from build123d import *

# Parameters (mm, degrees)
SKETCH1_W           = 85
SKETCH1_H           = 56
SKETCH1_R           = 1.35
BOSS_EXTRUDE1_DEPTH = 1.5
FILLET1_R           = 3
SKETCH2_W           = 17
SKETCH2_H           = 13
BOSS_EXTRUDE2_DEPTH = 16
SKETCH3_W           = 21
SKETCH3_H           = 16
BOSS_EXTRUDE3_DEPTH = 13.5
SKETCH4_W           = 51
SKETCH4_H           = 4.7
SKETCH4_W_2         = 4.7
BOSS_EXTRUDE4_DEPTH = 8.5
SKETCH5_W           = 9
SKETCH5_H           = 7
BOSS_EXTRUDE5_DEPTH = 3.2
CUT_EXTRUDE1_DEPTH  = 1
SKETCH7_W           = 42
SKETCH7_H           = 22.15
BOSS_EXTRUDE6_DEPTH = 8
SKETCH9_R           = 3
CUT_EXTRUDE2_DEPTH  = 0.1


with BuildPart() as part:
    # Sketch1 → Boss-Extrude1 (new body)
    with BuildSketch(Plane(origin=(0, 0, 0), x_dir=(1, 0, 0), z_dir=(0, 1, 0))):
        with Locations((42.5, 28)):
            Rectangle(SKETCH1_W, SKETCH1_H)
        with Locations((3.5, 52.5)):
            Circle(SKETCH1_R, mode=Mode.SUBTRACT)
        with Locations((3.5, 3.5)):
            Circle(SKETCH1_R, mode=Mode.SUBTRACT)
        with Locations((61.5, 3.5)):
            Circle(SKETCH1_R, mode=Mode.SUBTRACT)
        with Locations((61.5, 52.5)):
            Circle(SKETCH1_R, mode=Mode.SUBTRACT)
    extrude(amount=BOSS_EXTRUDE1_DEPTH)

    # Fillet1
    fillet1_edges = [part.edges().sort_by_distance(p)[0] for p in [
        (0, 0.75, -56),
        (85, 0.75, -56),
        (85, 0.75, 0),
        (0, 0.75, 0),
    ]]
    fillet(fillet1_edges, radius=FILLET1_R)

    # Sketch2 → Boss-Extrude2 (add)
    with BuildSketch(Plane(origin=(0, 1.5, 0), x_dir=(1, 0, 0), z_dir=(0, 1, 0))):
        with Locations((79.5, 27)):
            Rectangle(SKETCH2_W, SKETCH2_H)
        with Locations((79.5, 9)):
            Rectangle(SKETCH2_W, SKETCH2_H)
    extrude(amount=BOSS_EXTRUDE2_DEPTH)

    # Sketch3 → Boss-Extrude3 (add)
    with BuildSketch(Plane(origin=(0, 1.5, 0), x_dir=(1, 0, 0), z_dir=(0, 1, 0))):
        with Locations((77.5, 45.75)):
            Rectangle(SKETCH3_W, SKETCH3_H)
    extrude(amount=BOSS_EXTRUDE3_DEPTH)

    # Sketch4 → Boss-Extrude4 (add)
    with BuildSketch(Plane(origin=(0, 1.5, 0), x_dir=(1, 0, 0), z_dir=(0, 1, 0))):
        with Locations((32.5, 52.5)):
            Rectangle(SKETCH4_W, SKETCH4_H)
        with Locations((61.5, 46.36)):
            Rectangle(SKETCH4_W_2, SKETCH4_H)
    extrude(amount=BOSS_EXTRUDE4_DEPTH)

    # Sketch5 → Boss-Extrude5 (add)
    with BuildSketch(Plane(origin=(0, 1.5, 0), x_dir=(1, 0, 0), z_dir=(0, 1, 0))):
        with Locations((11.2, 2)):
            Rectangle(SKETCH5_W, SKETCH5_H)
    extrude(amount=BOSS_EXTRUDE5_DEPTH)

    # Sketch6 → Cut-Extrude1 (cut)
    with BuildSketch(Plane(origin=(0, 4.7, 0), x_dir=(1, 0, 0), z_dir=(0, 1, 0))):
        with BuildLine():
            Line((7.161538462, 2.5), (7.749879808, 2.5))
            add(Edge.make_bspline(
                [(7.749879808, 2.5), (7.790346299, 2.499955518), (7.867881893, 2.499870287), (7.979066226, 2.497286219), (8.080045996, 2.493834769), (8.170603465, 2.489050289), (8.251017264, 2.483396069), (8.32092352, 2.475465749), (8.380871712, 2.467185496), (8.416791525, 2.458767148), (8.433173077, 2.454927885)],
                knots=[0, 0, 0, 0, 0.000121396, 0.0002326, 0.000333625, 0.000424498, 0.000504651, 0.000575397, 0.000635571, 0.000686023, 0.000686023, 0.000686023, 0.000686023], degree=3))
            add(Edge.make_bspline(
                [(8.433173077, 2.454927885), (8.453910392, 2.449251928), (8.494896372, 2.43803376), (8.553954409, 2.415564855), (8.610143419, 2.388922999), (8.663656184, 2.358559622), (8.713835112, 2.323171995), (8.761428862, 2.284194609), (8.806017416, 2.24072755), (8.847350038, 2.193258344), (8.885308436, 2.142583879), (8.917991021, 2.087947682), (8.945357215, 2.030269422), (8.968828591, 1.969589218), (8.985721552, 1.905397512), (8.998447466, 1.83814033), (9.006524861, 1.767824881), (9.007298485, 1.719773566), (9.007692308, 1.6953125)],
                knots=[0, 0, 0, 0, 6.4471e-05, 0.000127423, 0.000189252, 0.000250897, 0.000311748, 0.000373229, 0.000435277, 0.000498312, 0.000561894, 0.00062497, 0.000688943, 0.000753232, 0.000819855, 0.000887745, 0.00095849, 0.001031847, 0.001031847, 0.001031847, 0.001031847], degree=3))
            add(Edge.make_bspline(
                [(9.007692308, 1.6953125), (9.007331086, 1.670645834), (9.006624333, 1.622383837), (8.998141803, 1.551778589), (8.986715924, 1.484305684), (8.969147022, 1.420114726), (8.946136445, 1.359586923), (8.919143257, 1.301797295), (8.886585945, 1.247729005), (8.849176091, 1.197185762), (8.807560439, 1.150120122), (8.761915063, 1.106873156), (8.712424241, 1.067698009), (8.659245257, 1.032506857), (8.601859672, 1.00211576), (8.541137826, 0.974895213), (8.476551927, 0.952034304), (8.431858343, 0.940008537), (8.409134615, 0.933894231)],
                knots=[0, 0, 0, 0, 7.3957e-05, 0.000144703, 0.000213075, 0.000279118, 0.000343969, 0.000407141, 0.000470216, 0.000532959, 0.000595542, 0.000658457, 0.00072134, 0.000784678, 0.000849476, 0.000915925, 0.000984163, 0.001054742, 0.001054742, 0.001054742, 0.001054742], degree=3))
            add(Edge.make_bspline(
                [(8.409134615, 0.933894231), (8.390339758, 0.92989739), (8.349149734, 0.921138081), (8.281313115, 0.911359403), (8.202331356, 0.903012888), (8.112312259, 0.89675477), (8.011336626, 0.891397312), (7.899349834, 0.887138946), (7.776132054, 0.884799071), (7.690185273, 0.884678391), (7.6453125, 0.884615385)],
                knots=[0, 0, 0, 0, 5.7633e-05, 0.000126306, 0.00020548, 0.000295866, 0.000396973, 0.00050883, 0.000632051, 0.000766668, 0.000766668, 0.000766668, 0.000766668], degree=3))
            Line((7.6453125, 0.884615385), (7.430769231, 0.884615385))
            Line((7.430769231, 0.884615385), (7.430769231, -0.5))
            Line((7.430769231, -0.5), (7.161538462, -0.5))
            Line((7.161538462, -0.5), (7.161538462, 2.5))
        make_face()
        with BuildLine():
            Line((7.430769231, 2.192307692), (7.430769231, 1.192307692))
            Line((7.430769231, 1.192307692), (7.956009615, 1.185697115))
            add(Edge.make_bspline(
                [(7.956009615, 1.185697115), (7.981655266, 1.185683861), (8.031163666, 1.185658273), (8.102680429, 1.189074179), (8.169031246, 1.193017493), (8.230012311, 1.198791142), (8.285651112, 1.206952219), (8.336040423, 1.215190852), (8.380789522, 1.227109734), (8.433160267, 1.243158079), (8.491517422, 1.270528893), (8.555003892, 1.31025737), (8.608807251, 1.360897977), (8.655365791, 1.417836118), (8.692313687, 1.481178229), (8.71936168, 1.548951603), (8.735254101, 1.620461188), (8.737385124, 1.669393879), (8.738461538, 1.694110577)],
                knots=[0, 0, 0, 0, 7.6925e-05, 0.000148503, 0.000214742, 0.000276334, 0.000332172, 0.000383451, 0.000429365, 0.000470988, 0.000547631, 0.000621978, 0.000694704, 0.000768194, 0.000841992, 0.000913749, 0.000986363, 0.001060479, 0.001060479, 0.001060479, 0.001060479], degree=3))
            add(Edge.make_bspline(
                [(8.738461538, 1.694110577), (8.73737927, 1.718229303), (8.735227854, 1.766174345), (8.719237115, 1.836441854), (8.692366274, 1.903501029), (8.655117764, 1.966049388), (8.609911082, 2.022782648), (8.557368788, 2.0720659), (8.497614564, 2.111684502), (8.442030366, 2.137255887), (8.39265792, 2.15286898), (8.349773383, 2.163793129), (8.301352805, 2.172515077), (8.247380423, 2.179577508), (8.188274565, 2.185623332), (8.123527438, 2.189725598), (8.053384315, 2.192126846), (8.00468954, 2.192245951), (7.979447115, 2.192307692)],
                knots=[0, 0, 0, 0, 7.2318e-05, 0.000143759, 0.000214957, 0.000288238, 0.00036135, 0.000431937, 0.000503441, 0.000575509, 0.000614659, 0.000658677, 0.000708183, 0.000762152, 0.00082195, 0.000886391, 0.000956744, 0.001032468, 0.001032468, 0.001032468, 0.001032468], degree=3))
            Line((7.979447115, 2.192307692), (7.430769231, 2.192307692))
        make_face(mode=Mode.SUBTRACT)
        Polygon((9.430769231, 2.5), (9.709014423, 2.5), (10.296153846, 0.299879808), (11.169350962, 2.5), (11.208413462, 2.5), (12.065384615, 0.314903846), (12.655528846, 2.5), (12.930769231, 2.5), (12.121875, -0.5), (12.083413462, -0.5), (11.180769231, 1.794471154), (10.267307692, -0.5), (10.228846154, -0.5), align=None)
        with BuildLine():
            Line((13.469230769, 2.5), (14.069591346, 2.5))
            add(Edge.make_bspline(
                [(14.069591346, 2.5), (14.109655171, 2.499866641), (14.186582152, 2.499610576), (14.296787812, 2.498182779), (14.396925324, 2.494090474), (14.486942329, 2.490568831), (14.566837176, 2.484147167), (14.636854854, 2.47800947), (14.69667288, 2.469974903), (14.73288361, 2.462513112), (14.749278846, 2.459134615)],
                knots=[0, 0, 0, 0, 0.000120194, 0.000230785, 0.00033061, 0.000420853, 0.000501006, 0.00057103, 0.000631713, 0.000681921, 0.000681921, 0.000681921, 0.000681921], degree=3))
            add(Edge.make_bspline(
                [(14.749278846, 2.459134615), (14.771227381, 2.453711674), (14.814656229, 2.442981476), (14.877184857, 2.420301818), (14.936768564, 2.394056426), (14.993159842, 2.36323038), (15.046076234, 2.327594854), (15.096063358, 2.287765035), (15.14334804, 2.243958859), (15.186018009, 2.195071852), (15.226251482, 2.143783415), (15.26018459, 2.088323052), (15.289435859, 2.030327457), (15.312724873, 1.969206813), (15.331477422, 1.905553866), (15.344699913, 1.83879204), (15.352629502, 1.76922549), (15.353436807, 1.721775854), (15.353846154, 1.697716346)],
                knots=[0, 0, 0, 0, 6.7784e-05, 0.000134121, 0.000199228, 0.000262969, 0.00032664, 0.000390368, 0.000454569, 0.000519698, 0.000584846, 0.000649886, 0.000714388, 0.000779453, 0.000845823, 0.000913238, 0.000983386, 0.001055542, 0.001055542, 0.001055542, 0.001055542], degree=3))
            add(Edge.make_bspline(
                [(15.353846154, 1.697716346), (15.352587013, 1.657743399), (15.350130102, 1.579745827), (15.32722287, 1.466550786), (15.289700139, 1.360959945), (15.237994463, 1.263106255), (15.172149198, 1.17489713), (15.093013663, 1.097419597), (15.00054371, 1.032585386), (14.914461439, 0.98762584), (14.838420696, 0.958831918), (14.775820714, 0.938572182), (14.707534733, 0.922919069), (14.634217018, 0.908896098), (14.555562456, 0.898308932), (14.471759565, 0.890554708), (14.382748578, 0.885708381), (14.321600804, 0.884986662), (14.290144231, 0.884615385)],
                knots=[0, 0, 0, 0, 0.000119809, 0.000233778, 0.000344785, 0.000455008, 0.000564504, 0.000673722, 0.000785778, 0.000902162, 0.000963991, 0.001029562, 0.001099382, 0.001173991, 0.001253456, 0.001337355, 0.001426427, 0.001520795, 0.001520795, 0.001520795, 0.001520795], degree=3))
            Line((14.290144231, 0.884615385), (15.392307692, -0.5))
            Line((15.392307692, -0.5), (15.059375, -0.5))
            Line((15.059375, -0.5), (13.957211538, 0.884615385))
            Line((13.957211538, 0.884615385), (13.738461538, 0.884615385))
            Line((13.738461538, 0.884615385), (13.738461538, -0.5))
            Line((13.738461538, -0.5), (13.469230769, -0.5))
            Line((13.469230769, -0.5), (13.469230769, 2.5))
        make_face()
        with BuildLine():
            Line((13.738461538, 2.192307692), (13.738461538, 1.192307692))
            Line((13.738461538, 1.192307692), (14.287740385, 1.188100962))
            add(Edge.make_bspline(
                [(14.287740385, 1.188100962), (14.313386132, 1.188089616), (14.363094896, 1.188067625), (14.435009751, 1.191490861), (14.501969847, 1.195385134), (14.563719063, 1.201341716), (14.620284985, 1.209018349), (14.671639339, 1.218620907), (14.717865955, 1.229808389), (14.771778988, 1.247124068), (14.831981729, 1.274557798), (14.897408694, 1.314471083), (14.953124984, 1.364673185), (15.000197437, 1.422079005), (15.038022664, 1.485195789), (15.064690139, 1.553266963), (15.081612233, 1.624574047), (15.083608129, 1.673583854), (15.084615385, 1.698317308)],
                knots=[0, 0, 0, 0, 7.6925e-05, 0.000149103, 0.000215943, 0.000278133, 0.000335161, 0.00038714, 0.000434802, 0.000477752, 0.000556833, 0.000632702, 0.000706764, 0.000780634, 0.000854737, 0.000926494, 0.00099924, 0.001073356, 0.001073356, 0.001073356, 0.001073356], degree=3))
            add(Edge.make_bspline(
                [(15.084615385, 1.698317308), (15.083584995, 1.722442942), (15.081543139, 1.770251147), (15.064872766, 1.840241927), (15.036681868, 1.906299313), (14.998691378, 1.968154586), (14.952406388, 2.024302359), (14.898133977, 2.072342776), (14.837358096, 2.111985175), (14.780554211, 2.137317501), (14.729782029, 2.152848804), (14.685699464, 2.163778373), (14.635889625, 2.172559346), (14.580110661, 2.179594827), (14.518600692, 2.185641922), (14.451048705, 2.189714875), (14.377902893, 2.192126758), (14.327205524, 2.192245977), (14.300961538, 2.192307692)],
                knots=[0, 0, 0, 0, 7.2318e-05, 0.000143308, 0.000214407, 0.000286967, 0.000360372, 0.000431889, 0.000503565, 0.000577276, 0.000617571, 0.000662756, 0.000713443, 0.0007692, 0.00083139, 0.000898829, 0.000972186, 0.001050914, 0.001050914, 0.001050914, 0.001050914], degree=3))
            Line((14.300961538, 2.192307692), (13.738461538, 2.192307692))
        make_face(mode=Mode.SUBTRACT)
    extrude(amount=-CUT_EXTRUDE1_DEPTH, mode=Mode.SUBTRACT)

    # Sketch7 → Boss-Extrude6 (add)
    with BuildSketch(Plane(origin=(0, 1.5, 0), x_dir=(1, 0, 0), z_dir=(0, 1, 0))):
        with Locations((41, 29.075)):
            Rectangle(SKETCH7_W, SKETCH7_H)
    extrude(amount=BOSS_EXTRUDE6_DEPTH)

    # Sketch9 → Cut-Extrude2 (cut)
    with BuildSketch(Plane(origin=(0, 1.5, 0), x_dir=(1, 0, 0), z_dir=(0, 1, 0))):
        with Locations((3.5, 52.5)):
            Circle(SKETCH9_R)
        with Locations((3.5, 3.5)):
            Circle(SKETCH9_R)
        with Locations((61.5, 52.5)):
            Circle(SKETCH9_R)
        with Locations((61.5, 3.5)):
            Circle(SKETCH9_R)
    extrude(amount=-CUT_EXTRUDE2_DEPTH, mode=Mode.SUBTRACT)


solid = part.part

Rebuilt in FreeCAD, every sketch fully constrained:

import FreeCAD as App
import Part
import Sketcher


def edges_at(feature, points):
    """Names of the edges that pass closest to the given points."""
    edges = feature.Shape.Edges
    near = lambda p: min(range(len(edges)), key=lambda i: edges[i].distToShape(Part.Vertex(*p))[0])
    return sorted({f"Edge{near(p) + 1}" for p in points})


def add_polygon(sketch, points):
    """Adds a closed chain of lines whose ends are joined by coincident constraints."""
    first, n = sketch.GeometryCount, len(points)
    for a, b in zip(points, points[1:] + points[:1]):
        sketch.addGeometry(Part.LineSegment(App.Vector(*a, 0), App.Vector(*b, 0)), False)
    for i in range(n):
        sketch.addConstraint(Sketcher.Constraint("Coincident", first + i, 2, first + (i + 1) % n, 1))

doc = App.newDocument("Part")
params = doc.addObject("Spreadsheet::Sheet", "Params")
for row, (alias, value) in enumerate([
    ("sketch1_diameter", "2.7 mm"),
    ("sketch1_width", "85 mm"),
    ("sketch1_height", "56 mm"),
    ("pad1_length", "1.5 mm"),
    ("fillet_radius", "3 mm"),
    ("sketch2_width", "17 mm"),
    ("sketch2_height", "13 mm"),
    ("pad2_length", "16 mm"),
    ("sketch3_width", "21 mm"),
    ("sketch3_height", "16 mm"),
    ("pad3_length", "13.5 mm"),
    ("sketch4_width", "51 mm"),
    ("sketch4_width2", "4.7 mm"),
    ("pad4_length", "8.5 mm"),
    ("sketch5_width", "9 mm"),
    ("sketch5_height", "7 mm"),
    ("pad5_length", "3.2 mm"),
    ("sketch6_height", "3 mm"),
    ("sketch6_height2", "1 mm"),
    ("sketch6_height3", "3 mm"),
    ("sketch6_height4", "1 mm"),
    ("pocket1_length", "1 mm"),
    ("sketch7_width", "42 mm"),
    ("sketch7_height", "22.15 mm"),
    ("pad6_length", "8 mm"),
    ("sketch8_diameter", "6 mm"),
    ("pocket2_length", "0.1 mm"),
], start=1):
    params.set(f"A{row}", alias)
    params.set(f"B{row}", "=" + value)
    params.setAlias(f"B{row}", alias)

body = doc.addObject("PartDesign::Body", "Body")

sketch1 = doc.addObject("Sketcher::SketchObject", "Sketch")
body.addObject(sketch1)
sketch1.AttachmentSupport = (doc.XZ_Plane, [""])
sketch1.MapMode = "FlatFace"
add_polygon(sketch1, [(0, -56), (0, 0), (85, 0), (85, -56)])
sketch1.addGeometry(Part.Circle(App.Vector(3.5, -3.5, 0), App.Vector(0, 0, 1), 1.4), False)
sketch1.addGeometry(Part.Circle(App.Vector(61.5, -3.5, 0), App.Vector(0, 0, 1), 1.4), False)
sketch1.addGeometry(Part.Circle(App.Vector(3.5, -52.5, 0), App.Vector(0, 0, 1), 1.4), False)
sketch1.addGeometry(Part.Circle(App.Vector(61.5, -52.5, 0), App.Vector(0, 0, 1), 1.4), False)
sketch1.addConstraint([
    Sketcher.Constraint("Vertical", 0),
    Sketcher.Constraint("Horizontal", 1),
    Sketcher.Constraint("Vertical", 2),
    Sketcher.Constraint("Horizontal", 3),
    Sketcher.Constraint("Coincident", 0, 2, -1, 1),
    Sketcher.Constraint("Equal", 4, 5),
    Sketcher.Constraint("Equal", 5, 6),
    Sketcher.Constraint("Equal", 6, 7),
    Sketcher.Constraint("Horizontal", 4, 3, 5, 3),
    Sketcher.Constraint("Horizontal", 6, 3, 7, 3),
    Sketcher.Constraint("Vertical", 4, 3, 6, 3),
    Sketcher.Constraint("Vertical", 5, 3, 7, 3),
    Sketcher.Constraint("Diameter", 4, 2.7),
    Sketcher.Constraint("DistanceX", 1, 1, 1, 2, 85.0),
    Sketcher.Constraint("DistanceY", 0, 1, 0, 2, 56.0),
    Sketcher.Constraint("DistanceX", 4, 3, 5, 3, 58.0),
    Sketcher.Constraint("DistanceY", 6, 3, 4, 3, 49.0),
    Sketcher.Constraint("DistanceX", -1, 1, 4, 3, 3.5),
    Sketcher.Constraint("DistanceY", 4, 3, -1, 1, 3.5),
])
sketch1.setExpression("Constraints[16]", "Params.sketch1_diameter")
sketch1.setExpression("Constraints[17]", "Params.sketch1_width")
sketch1.setExpression("Constraints[18]", "Params.sketch1_height")
pad1 = doc.addObject("PartDesign::Pad", "Pad")
body.addObject(pad1)
pad1.Profile = sketch1
pad1.setExpression("Length", "Params.pad1_length")
pad1.Reversed = True
doc.recompute()

fillet = doc.addObject("PartDesign::Fillet", "Fillet")
body.addObject(fillet)
fillet.Base = (pad1, edges_at(pad1, [
    (0, 0.75, -56),
    (85, 0.75, -56),
    (85, 0.75, 0),
    (0, 0.75, 0),
]))
fillet.setExpression("Radius", "Params.fillet_radius")

sketch2 = doc.addObject("Sketcher::SketchObject", "Sketch001")
body.addObject(sketch2)
sketch2.AttachmentSupport = (doc.XZ_Plane, [""])
sketch2.MapMode = "FlatFace"
sketch2.AttachmentOffset = App.Placement(App.Vector(0, 0, -1.5), App.Rotation())
add_polygon(sketch2, [(71, -34), (71, -20), (88, -20), (88, -34)])
add_polygon(sketch2, [(71, -16), (71, -2), (88, -2), (88, -16)])
sketch2.addConstraint([
    Sketcher.Constraint("Vertical", 0),
    Sketcher.Constraint("Horizontal", 1),
    Sketcher.Constraint("Vertical", 2),
    Sketcher.Constraint("Horizontal", 3),
    Sketcher.Constraint("Vertical", 4),
    Sketcher.Constraint("Horizontal", 5),
    Sketcher.Constraint("Vertical", 6),
    Sketcher.Constraint("Horizontal", 7),
    Sketcher.Constraint("Vertical", 3, 2, 4, 2),
    Sketcher.Constraint("Vertical", 2, 2, 5, 2),
    Sketcher.Constraint("Equal", 2, 4),
    Sketcher.Constraint("DistanceX", 1, 1, 1, 2, 17.0),
    Sketcher.Constraint("DistanceY", 0, 1, 0, 2, 13.0),
    Sketcher.Constraint("DistanceX", -1, 1, 0, 2, 71.0),
    Sketcher.Constraint("DistanceY", 0, 2, 4, 2, 18.0),
    Sketcher.Constraint("DistanceY", 0, 2, -1, 1, 20.5),
])
sketch2.setExpression("Constraints[19]", "Params.sketch2_width")
sketch2.setExpression("Constraints[20]", "Params.sketch2_height")
pad2 = doc.addObject("PartDesign::Pad", "Pad001")
body.addObject(pad2)
pad2.Profile = sketch2
pad2.setExpression("Length", "Params.pad2_length")
pad2.Reversed = True

sketch3 = doc.addObject("Sketcher::SketchObject", "Sketch002")
body.addObject(sketch3)
sketch3.AttachmentSupport = (doc.XZ_Plane, [""])
sketch3.MapMode = "FlatFace"
sketch3.AttachmentOffset = App.Placement(App.Vector(0, 0, -1.5), App.Rotation())
add_polygon(sketch3, [(67, -54), (67, -38), (88, -38), (88, -54)])
sketch3.addConstraint([
    Sketcher.Constraint("Vertical", 0),
    Sketcher.Constraint("Horizontal", 1),
    Sketcher.Constraint("Vertical", 2),
    Sketcher.Constraint("Horizontal", 3),
    Sketcher.Constraint("DistanceX", 1, 1, 1, 2, 21.0),
    Sketcher.Constraint("DistanceY", 0, 1, 0, 2, 16.0),
    Sketcher.Constraint("DistanceX", -1, 1, 0, 2, 67.0),
    Sketcher.Constraint("DistanceY", 0, 2, -1, 1, 37.75),
])
sketch3.setExpression("Constraints[8]", "Params.sketch3_width")
sketch3.setExpression("Constraints[9]", "Params.sketch3_height")
pad3 = doc.addObject("PartDesign::Pad", "Pad002")
body.addObject(pad3)
pad3.Profile = sketch3
pad3.setExpression("Length", "Params.pad3_length")
pad3.Reversed = True

sketch4 = doc.addObject("Sketcher::SketchObject", "Sketch003")
body.addObject(sketch4)
sketch4.AttachmentSupport = (doc.XZ_Plane, [""])
sketch4.MapMode = "FlatFace"
sketch4.AttachmentOffset = App.Placement(App.Vector(0, 0, -1.5), App.Rotation())
add_polygon(sketch4, [(7, -54.9), (7, -50.1), (58, -50.1), (58, -54.9)])
add_polygon(sketch4, [(59.1, -48.7), (59.1, -44), (63.9, -44), (63.9, -48.7)])
sketch4.addConstraint([
    Sketcher.Constraint("Vertical", 0),
    Sketcher.Constraint("Horizontal", 1),
    Sketcher.Constraint("Vertical", 2),
    Sketcher.Constraint("Horizontal", 3),
    Sketcher.Constraint("Vertical", 4),
    Sketcher.Constraint("Horizontal", 5),
    Sketcher.Constraint("Vertical", 6),
    Sketcher.Constraint("Horizontal", 7),
    Sketcher.Constraint("Equal", 7, 0),
    Sketcher.Constraint("Equal", 2, 4),
    Sketcher.Constraint("DistanceX", 1, 1, 1, 2, 51.0),
    Sketcher.Constraint("DistanceX", 5, 1, 5, 2, 4.7),
    Sketcher.Constraint("DistanceX", -1, 1, 0, 2, 7.0),
    Sketcher.Constraint("DistanceY", 0, 2, -1, 1, 50.15),
    Sketcher.Constraint("DistanceX", -1, 1, 4, 2, 59.15),
    Sketcher.Constraint("DistanceY", 4, 2, -1, 1, 44.01),
])
sketch4.setExpression("Constraints[18]", "Params.sketch4_width")
sketch4.setExpression("Constraints[19]", "Params.sketch4_width2")
pad4 = doc.addObject("PartDesign::Pad", "Pad003")
body.addObject(pad4)
pad4.Profile = sketch4
pad4.setExpression("Length", "Params.pad4_length")
pad4.Reversed = True

sketch5 = doc.addObject("Sketcher::SketchObject", "Sketch004")
body.addObject(sketch5)
sketch5.AttachmentSupport = (doc.XZ_Plane, [""])
sketch5.MapMode = "FlatFace"
sketch5.AttachmentOffset = App.Placement(App.Vector(0, 0, -1.5), App.Rotation())
add_polygon(sketch5, [(7, -6), (7, 2), (16, 2), (16, -6)])
sketch5.addConstraint([
    Sketcher.Constraint("Vertical", 0),
    Sketcher.Constraint("Horizontal", 1),
    Sketcher.Constraint("Vertical", 2),
    Sketcher.Constraint("Horizontal", 3),
    Sketcher.Constraint("DistanceX", 1, 1, 1, 2, 9.0),
    Sketcher.Constraint("DistanceY", 0, 1, 0, 2, 7.0),
    Sketcher.Constraint("DistanceX", -1, 1, 0, 2, 6.7),
    Sketcher.Constraint("DistanceY", -1, 1, 0, 2, 1.5),
])
sketch5.setExpression("Constraints[8]", "Params.sketch5_width")
sketch5.setExpression("Constraints[9]", "Params.sketch5_height")
pad5 = doc.addObject("PartDesign::Pad", "Pad004")
body.addObject(pad5)
pad5.Profile = sketch5
pad5.setExpression("Length", "Params.pad5_length")
pad5.Reversed = True

sketch6 = doc.addObject("Sketcher::SketchObject", "Sketch005")
body.addObject(sketch6)
sketch6.AttachmentSupport = (doc.XZ_Plane, [""])
sketch6.MapMode = "FlatFace"
sketch6.AttachmentOffset = App.Placement(App.Vector(0, 0, -4.7), App.Rotation())
sketch6.addGeometry(Part.LineSegment(App.Vector(7.74988, -2.5, 0), App.Vector(7.161538, -2.5, 0)), False)
sketch6.addGeometry(Part.LineSegment(App.Vector(7.161538, -2.5, 0), App.Vector(7.161538, 0.5, 0)), False)
sketch6.addGeometry(Part.LineSegment(App.Vector(7.161538, 0.5, 0), App.Vector(7.430769, 0.5, 0)), False)
sketch6.addGeometry(Part.LineSegment(App.Vector(7.430769, 0.5, 0), App.Vector(7.430769, -0.884615, 0)), False)
sketch6.addGeometry(Part.LineSegment(App.Vector(7.430769, -0.884615, 0), App.Vector(7.645313, -0.884615, 0)), False)
sketch6.addGeometry(Part.BSplineCurve([App.Vector(8.409135, -0.933894, 0), App.Vector(8.39034, -0.929897, 0), App.Vector(8.34915, -0.921138, 0), App.Vector(8.281313, -0.911359, 0), App.Vector(8.202331, -0.903013, 0), App.Vector(8.112312, -0.896755, 0), App.Vector(8.011337, -0.891397, 0), App.Vector(7.89935, -0.887139, 0), App.Vector(7.776132, -0.884799, 0), App.Vector(7.690185, -0.884678, 0), App.Vector(7.645313, -0.884615, 0)], [4, 1, 1, 1, 1, 1, 1, 1, 4], [0, 0.000057633, 0.000126306, 0.00020548, 0.000295866, 0.000396973, 0.00050883, 0.000632051, 0.000766668], False, 3, [1, 1, 1, 1, 1, 1, 1, 1, 1, 1, 1], False), False)
sketch6.addGeometry(Part.BSplineCurve([App.Vector(9.007692, -1.695312, 0), App.Vector(9.007331, -1.670646, 0), App.Vector(9.006624, -1.622384, 0), App.Vector(8.998142, -1.551779, 0), App.Vector(8.986716, -1.484306, 0), App.Vector(8.969147, -1.420115, 0), App.Vector(8.946136, -1.359587, 0), App.Vector(8.919143, -1.301797, 0), App.Vector(8.886586, -1.247729, 0), App.Vector(8.849176, -1.197186, 0), App.Vector(8.80756, -1.15012, 0), App.Vector(8.761915, -1.106873, 0), App.Vector(8.712424, -1.067698, 0), App.Vector(8.659245, -1.032507, 0), App.Vector(8.60186, -1.002116, 0), App.Vector(8.541138, -0.974895, 0), App.Vector(8.476552, -0.952034, 0), App.Vector(8.431858, -0.940009, 0), App.Vector(8.409135, -0.933894, 0)], [4, 1, 1, 1, 1, 1, 1, 1, 1, 1, 1, 1, 1, 1, 1, 1, 4], [0, 0.000073957, 0.000144703, 0.000213075, 0.000279118, 0.000343969, 0.000407141, 0.000470216, 0.000532959, 0.000595542, 0.000658457, 0.00072134, 0.000784678, 0.000849476, 0.000915925, 0.000984163, 0.001054742], False, 3, [1, 1, 1, 1, 1, 1, 1, 1, 1, 1, 1, 1, 1, 1, 1, 1, 1, 1, 1], False), False)
sketch6.addGeometry(Part.BSplineCurve([App.Vector(8.433173, -2.454928, 0), App.Vector(8.45391, -2.449252, 0), App.Vector(8.494896, -2.438034, 0), App.Vector(8.553954, -2.415565, 0), App.Vector(8.610143, -2.388923, 0), App.Vector(8.663656, -2.35856, 0), App.Vector(8.713835, -2.323172, 0), App.Vector(8.761429, -2.284195, 0), App.Vector(8.806017, -2.240728, 0), App.Vector(8.84735, -2.193258, 0), App.Vector(8.885308, -2.142584, 0), App.Vector(8.917991, -2.087948, 0), App.Vector(8.945357, -2.030269, 0), App.Vector(8.968829, -1.969589, 0), App.Vector(8.985722, -1.905398, 0), App.Vector(8.998447, -1.83814, 0), App.Vector(9.006525, -1.767825, 0), App.Vector(9.007298, -1.719774, 0), App.Vector(9.007692, -1.695312, 0)], [4, 1, 1, 1, 1, 1, 1, 1, 1, 1, 1, 1, 1, 1, 1, 1, 4], [0, 0.000064471, 0.000127423, 0.000189252, 0.000250897, 0.000311748, 0.000373229, 0.000435277, 0.000498312, 0.000561894, 0.00062497, 0.000688943, 0.000753232, 0.000819855, 0.000887745, 0.00095849, 0.001031847], False, 3, [1, 1, 1, 1, 1, 1, 1, 1, 1, 1, 1, 1, 1, 1, 1, 1, 1, 1, 1], False), False)
sketch6.addGeometry(Part.BSplineCurve([App.Vector(7.74988, -2.5, 0), App.Vector(7.790346, -2.499956, 0), App.Vector(7.867882, -2.49987, 0), App.Vector(7.979066, -2.497286, 0), App.Vector(8.080046, -2.493835, 0), App.Vector(8.170603, -2.48905, 0), App.Vector(8.251017, -2.483396, 0), App.Vector(8.320924, -2.475466, 0), App.Vector(8.380872, -2.467185, 0), App.Vector(8.416792, -2.458767, 0), App.Vector(8.433173, -2.454928, 0)], [4, 1, 1, 1, 1, 1, 1, 1, 4], [0, 0.000121396, 0.0002326, 0.000333625, 0.000424498, 0.000504651, 0.000575397, 0.000635571, 0.000686023], False, 3, [1, 1, 1, 1, 1, 1, 1, 1, 1, 1, 1], False), False)
sketch6.addGeometry(Part.LineSegment(App.Vector(7.430769, -2.192308, 0), App.Vector(7.979447, -2.192308, 0)), False)
sketch6.addGeometry(Part.BSplineCurve([App.Vector(8.738462, -1.694111, 0), App.Vector(8.737379, -1.718229, 0), App.Vector(8.735228, -1.766174, 0), App.Vector(8.719237, -1.836442, 0), App.Vector(8.692366, -1.903501, 0), App.Vector(8.655118, -1.966049, 0), App.Vector(8.609911, -2.022783, 0), App.Vector(8.557369, -2.072066, 0), App.Vector(8.497615, -2.111685, 0), App.Vector(8.44203, -2.137256, 0), App.Vector(8.392658, -2.152869, 0), App.Vector(8.349773, -2.163793, 0), App.Vector(8.301353, -2.172515, 0), App.Vector(8.24738, -2.179578, 0), App.Vector(8.188275, -2.185623, 0), App.Vector(8.123527, -2.189726, 0), App.Vector(8.053384, -2.192127, 0), App.Vector(8.00469, -2.192246, 0), App.Vector(7.979447, -2.192308, 0)], [4, 1, 1, 1, 1, 1, 1, 1, 1, 1, 1, 1, 1, 1, 1, 1, 4], [0, 0.000072318, 0.000143759, 0.000214957, 0.000288238, 0.00036135, 0.000431937, 0.000503441, 0.000575509, 0.000614659, 0.000658677, 0.000708183, 0.000762152, 0.00082195, 0.000886391, 0.000956744, 0.001032468], False, 3, [1, 1, 1, 1, 1, 1, 1, 1, 1, 1, 1, 1, 1, 1, 1, 1, 1, 1, 1], False), False)
sketch6.addGeometry(Part.BSplineCurve([App.Vector(7.95601, -1.185697, 0), App.Vector(7.981655, -1.185684, 0), App.Vector(8.031164, -1.185658, 0), App.Vector(8.10268, -1.189074, 0), App.Vector(8.169031, -1.193017, 0), App.Vector(8.230012, -1.198791, 0), App.Vector(8.285651, -1.206952, 0), App.Vector(8.33604, -1.215191, 0), App.Vector(8.38079, -1.22711, 0), App.Vector(8.43316, -1.243158, 0), App.Vector(8.491517, -1.270529, 0), App.Vector(8.555004, -1.310257, 0), App.Vector(8.608807, -1.360898, 0), App.Vector(8.655366, -1.417836, 0), App.Vector(8.692314, -1.481178, 0), App.Vector(8.719362, -1.548952, 0), App.Vector(8.735254, -1.620461, 0), App.Vector(8.737385, -1.669394, 0), App.Vector(8.738462, -1.694111, 0)], [4, 1, 1, 1, 1, 1, 1, 1, 1, 1, 1, 1, 1, 1, 1, 1, 4], [0, 0.000076925, 0.000148503, 0.000214742, 0.000276334, 0.000332172, 0.000383451, 0.000429365, 0.000470988, 0.000547631, 0.000621978, 0.000694704, 0.000768194, 0.000841992, 0.000913749, 0.000986363, 0.001060479], False, 3, [1, 1, 1, 1, 1, 1, 1, 1, 1, 1, 1, 1, 1, 1, 1, 1, 1, 1, 1], False), False)
sketch6.addGeometry(Part.LineSegment(App.Vector(7.95601, -1.185697, 0), App.Vector(7.430769, -1.192308, 0)), False)
sketch6.addGeometry(Part.LineSegment(App.Vector(7.430769, -1.192308, 0), App.Vector(7.430769, -2.192308, 0)), False)
add_polygon(sketch6, [(9.709014, -2.5), (9.430769, -2.5), (10.228846, 0.5), (10.267308, 0.5), (11.180769, -1.794471), (12.083413, 0.5), (12.121875, 0.5), (12.930769, -2.5), (12.655529, -2.5), (12.065385, -0.314904), (11.208413, -2.5), (11.169351, -2.5), (10.296154, -0.29988)])
sketch6.addGeometry(Part.LineSegment(App.Vector(14.069591, -2.5, 0), App.Vector(13.469231, -2.5, 0)), False)
sketch6.addGeometry(Part.LineSegment(App.Vector(13.469231, -2.5, 0), App.Vector(13.469231, 0.5, 0)), False)
sketch6.addGeometry(Part.LineSegment(App.Vector(13.469231, 0.5, 0), App.Vector(13.738462, 0.5, 0)), False)
sketch6.addGeometry(Part.LineSegment(App.Vector(13.738462, 0.5, 0), App.Vector(13.738462, -0.884615, 0)), False)
sketch6.addGeometry(Part.LineSegment(App.Vector(13.738462, -0.884615, 0), App.Vector(13.957212, -0.884615, 0)), False)
sketch6.addGeometry(Part.LineSegment(App.Vector(13.957212, -0.884615, 0), App.Vector(15.059375, 0.5, 0)), False)
sketch6.addGeometry(Part.LineSegment(App.Vector(15.059375, 0.5, 0), App.Vector(15.392308, 0.5, 0)), False)
sketch6.addGeometry(Part.LineSegment(App.Vector(15.392308, 0.5, 0), App.Vector(14.290144, -0.884615, 0)), False)
sketch6.addGeometry(Part.BSplineCurve([App.Vector(15.353846, -1.697716, 0), App.Vector(15.352587, -1.657743, 0), App.Vector(15.35013, -1.579746, 0), App.Vector(15.327223, -1.466551, 0), App.Vector(15.2897, -1.36096, 0), App.Vector(15.237994, -1.263106, 0), App.Vector(15.172149, -1.174897, 0), App.Vector(15.093014, -1.09742, 0), App.Vector(15.000544, -1.032585, 0), App.Vector(14.914461, -0.987626, 0), App.Vector(14.838421, -0.958832, 0), App.Vector(14.775821, -0.938572, 0), App.Vector(14.707535, -0.922919, 0), App.Vector(14.634217, -0.908896, 0), App.Vector(14.555562, -0.898309, 0), App.Vector(14.47176, -0.890555, 0), App.Vector(14.382749, -0.885708, 0), App.Vector(14.321601, -0.884987, 0), App.Vector(14.290144, -0.884615, 0)], [4, 1, 1, 1, 1, 1, 1, 1, 1, 1, 1, 1, 1, 1, 1, 1, 4], [0, 0.000119809, 0.000233778, 0.000344785, 0.000455008, 0.000564504, 0.000673722, 0.000785778, 0.000902162, 0.000963991, 0.001029562, 0.001099382, 0.001173991, 0.001253456, 0.001337355, 0.001426427, 0.001520795], False, 3, [1, 1, 1, 1, 1, 1, 1, 1, 1, 1, 1, 1, 1, 1, 1, 1, 1, 1, 1], False), False)
sketch6.addGeometry(Part.BSplineCurve([App.Vector(14.749279, -2.459135, 0), App.Vector(14.771227, -2.453712, 0), App.Vector(14.814656, -2.442981, 0), App.Vector(14.877185, -2.420302, 0), App.Vector(14.936769, -2.394056, 0), App.Vector(14.99316, -2.36323, 0), App.Vector(15.046076, -2.327595, 0), App.Vector(15.096063, -2.287765, 0), App.Vector(15.143348, -2.243959, 0), App.Vector(15.186018, -2.195072, 0), App.Vector(15.226251, -2.143783, 0), App.Vector(15.260185, -2.088323, 0), App.Vector(15.289436, -2.030327, 0), App.Vector(15.312725, -1.969207, 0), App.Vector(15.331477, -1.905554, 0), App.Vector(15.3447, -1.838792, 0), App.Vector(15.35263, -1.769225, 0), App.Vector(15.353437, -1.721776, 0), App.Vector(15.353846, -1.697716, 0)], [4, 1, 1, 1, 1, 1, 1, 1, 1, 1, 1, 1, 1, 1, 1, 1, 4], [0, 0.000067784, 0.000134121, 0.000199228, 0.000262969, 0.00032664, 0.000390368, 0.000454569, 0.000519698, 0.000584846, 0.000649886, 0.000714388, 0.000779453, 0.000845823, 0.000913238, 0.000983386, 0.001055542], False, 3, [1, 1, 1, 1, 1, 1, 1, 1, 1, 1, 1, 1, 1, 1, 1, 1, 1, 1, 1], False), False)
sketch6.addGeometry(Part.BSplineCurve([App.Vector(14.069591, -2.5, 0), App.Vector(14.109655, -2.499867, 0), App.Vector(14.186582, -2.499611, 0), App.Vector(14.296788, -2.498183, 0), App.Vector(14.396925, -2.49409, 0), App.Vector(14.486942, -2.490569, 0), App.Vector(14.566837, -2.484147, 0), App.Vector(14.636855, -2.478009, 0), App.Vector(14.696673, -2.469975, 0), App.Vector(14.732884, -2.462513, 0), App.Vector(14.749279, -2.459135, 0)], [4, 1, 1, 1, 1, 1, 1, 1, 4], [0, 0.000120194, 0.000230785, 0.00033061, 0.000420853, 0.000501006, 0.00057103, 0.000631713, 0.000681921], False, 3, [1, 1, 1, 1, 1, 1, 1, 1, 1, 1, 1], False), False)
sketch6.addGeometry(Part.LineSegment(App.Vector(13.738462, -2.192308, 0), App.Vector(14.300962, -2.192308, 0)), False)
sketch6.addGeometry(Part.BSplineCurve([App.Vector(15.084615, -1.698317, 0), App.Vector(15.083585, -1.722443, 0), App.Vector(15.081543, -1.770251, 0), App.Vector(15.064873, -1.840242, 0), App.Vector(15.036682, -1.906299, 0), App.Vector(14.998691, -1.968155, 0), App.Vector(14.952406, -2.024302, 0), App.Vector(14.898134, -2.072343, 0), App.Vector(14.837358, -2.111985, 0), App.Vector(14.780554, -2.137318, 0), App.Vector(14.729782, -2.152849, 0), App.Vector(14.685699, -2.163778, 0), App.Vector(14.63589, -2.172559, 0), App.Vector(14.580111, -2.179595, 0), App.Vector(14.518601, -2.185642, 0), App.Vector(14.451049, -2.189715, 0), App.Vector(14.377903, -2.192127, 0), App.Vector(14.327206, -2.192246, 0), App.Vector(14.300962, -2.192308, 0)], [4, 1, 1, 1, 1, 1, 1, 1, 1, 1, 1, 1, 1, 1, 1, 1, 4], [0, 0.000072318, 0.000143308, 0.000214407, 0.000286967, 0.000360372, 0.000431889, 0.000503565, 0.000577276, 0.000617571, 0.000662756, 0.000713443, 0.0007692, 0.00083139, 0.000898829, 0.000972186, 0.001050914], False, 3, [1, 1, 1, 1, 1, 1, 1, 1, 1, 1, 1, 1, 1, 1, 1, 1, 1, 1, 1], False), False)
sketch6.addGeometry(Part.BSplineCurve([App.Vector(14.28774, -1.188101, 0), App.Vector(14.313386, -1.18809, 0), App.Vector(14.363095, -1.188068, 0), App.Vector(14.43501, -1.191491, 0), App.Vector(14.50197, -1.195385, 0), App.Vector(14.563719, -1.201342, 0), App.Vector(14.620285, -1.209018, 0), App.Vector(14.671639, -1.218621, 0), App.Vector(14.717866, -1.229808, 0), App.Vector(14.771779, -1.247124, 0), App.Vector(14.831982, -1.274558, 0), App.Vector(14.897409, -1.314471, 0), App.Vector(14.953125, -1.364673, 0), App.Vector(15.000197, -1.422079, 0), App.Vector(15.038023, -1.485196, 0), App.Vector(15.06469, -1.553267, 0), App.Vector(15.081612, -1.624574, 0), App.Vector(15.083608, -1.673584, 0), App.Vector(15.084615, -1.698317, 0)], [4, 1, 1, 1, 1, 1, 1, 1, 1, 1, 1, 1, 1, 1, 1, 1, 4], [0, 0.000076925, 0.000149103, 0.000215943, 0.000278133, 0.000335161, 0.00038714, 0.000434802, 0.000477752, 0.000556833, 0.000632702, 0.000706764, 0.000780634, 0.000854737, 0.000926494, 0.00099924, 0.001073356], False, 3, [1, 1, 1, 1, 1, 1, 1, 1, 1, 1, 1, 1, 1, 1, 1, 1, 1, 1, 1], False), False)
sketch6.addGeometry(Part.LineSegment(App.Vector(14.28774, -1.188101, 0), App.Vector(13.738462, -1.192308, 0)), False)
sketch6.addGeometry(Part.LineSegment(App.Vector(13.738462, -1.192308, 0), App.Vector(13.738462, -2.192308, 0)), False)
sketch6.addConstraint([
    Sketcher.Constraint("Block", 5),
    Sketcher.Constraint("Block", 6),
    Sketcher.Constraint("Block", 7),
    Sketcher.Constraint("Block", 8),
    Sketcher.Constraint("Block", 10),
    Sketcher.Constraint("Block", 11),
    Sketcher.Constraint("Block", 35),
    Sketcher.Constraint("Block", 36),
    Sketcher.Constraint("Block", 37),
    Sketcher.Constraint("Block", 39),
    Sketcher.Constraint("Block", 40),
    Sketcher.Constraint("Coincident", 0, 2, 1, 1),
    Sketcher.Constraint("Coincident", 1, 2, 2, 1),
    Sketcher.Constraint("Coincident", 2, 2, 3, 1),
    Sketcher.Constraint("Coincident", 3, 2, 4, 1),
    Sketcher.Constraint("Coincident", 4, 2, 5, 2),
    Sketcher.Constraint("Coincident", 8, 1, 0, 1),
    Sketcher.Constraint("Coincident", 9, 2, 10, 2),
    Sketcher.Constraint("Coincident", 11, 1, 12, 1),
    Sketcher.Constraint("Coincident", 12, 2, 13, 1),
    Sketcher.Constraint("Coincident", 13, 2, 9, 1),
    Sketcher.Constraint("Coincident", 27, 2, 28, 1),
    Sketcher.Constraint("Coincident", 28, 2, 29, 1),
    Sketcher.Constraint("Coincident", 29, 2, 30, 1),
    Sketcher.Constraint("Coincident", 30, 2, 31, 1),
    Sketcher.Constraint("Coincident", 31, 2, 32, 1),
    Sketcher.Constraint("Coincident", 32, 2, 33, 1),
    Sketcher.Constraint("Coincident", 33, 2, 34, 1),
    Sketcher.Constraint("Coincident", 34, 2, 35, 2),
    Sketcher.Constraint("Coincident", 37, 1, 27, 1),
    Sketcher.Constraint("Coincident", 38, 2, 39, 2),
    Sketcher.Constraint("Coincident", 40, 1, 41, 1),
    Sketcher.Constraint("Coincident", 41, 2, 42, 1),
    Sketcher.Constraint("Coincident", 42, 2, 38, 1),
    Sketcher.Constraint("Horizontal", 0),
    Sketcher.Constraint("Vertical", 1),
    Sketcher.Constraint("Horizontal", 2),
    Sketcher.Constraint("Vertical", 3),
    Sketcher.Constraint("Horizontal", 4),
    Sketcher.Constraint("Horizontal", 9),
    Sketcher.Constraint("Vertical", 13),
    Sketcher.Constraint("Horizontal", 14),
    Sketcher.Constraint("Horizontal", 16),
    Sketcher.Constraint("Horizontal", 19),
    Sketcher.Constraint("Horizontal", 21),
    Sketcher.Constraint("Horizontal", 24),
    Sketcher.Constraint("Horizontal", 27),
    Sketcher.Constraint("Vertical", 28),
    Sketcher.Constraint("Horizontal", 29),
    Sketcher.Constraint("Vertical", 30),
    Sketcher.Constraint("Horizontal", 31),
    Sketcher.Constraint("Horizontal", 33),
    Sketcher.Constraint("Horizontal", 38),
    Sketcher.Constraint("Vertical", 42),
    Sketcher.Constraint("DistanceY", 1, 1, 1, 2, 3.0),
    Sketcher.Constraint("DistanceY", 13, 2, 13, 1, 1.0),
    Sketcher.Constraint("DistanceY", 28, 1, 28, 2, 3.0),
    Sketcher.Constraint("DistanceY", 42, 2, 42, 1, 1.0),
    Sketcher.Constraint("DistanceX", 13, 2, 14, 2, 2.0),
    Sketcher.Constraint("DistanceY", 14, 2, 15, 2, 3.0),
    Sketcher.Constraint("DistanceY", 14, 2, 18, 2, 3.0),
    Sketcher.Constraint("DistanceY", 20, 2, 19, 2, 3.0),
    Sketcher.Constraint("DistanceY", 20, 2, 28, 2, 3.0),
    Sketcher.Constraint("DistanceY", 23, 2, -1, 1, 2.5),
    Sketcher.Constraint("DistanceY", -1, 1, 32, 2, 0.5),
    Sketcher.Constraint("DistanceX", 14, 2, 20, 2, 3.5),
    Sketcher.Constraint("DistanceX", 14, 2, 17, 2, 1.75),
    Sketcher.Constraint("DistanceX", 38, 1, 38, 2, 0.5625),
    Sketcher.Constraint("DistanceX", 0, 2, 0, 1, 0.588341),
    Sketcher.Constraint("DistanceX", 2, 1, 2, 2, 0.269231),
    Sketcher.Constraint("DistanceX", 16, 1, 16, 2, 0.038462),
    Sketcher.Constraint("DistanceX", 19, 1, 19, 2, 0.038462),
    Sketcher.Constraint("DistanceX", 21, 2, 21, 1, 0.27524),
    Sketcher.Constraint("DistanceX", 27, 2, 27, 1, 0.600361),
    Sketcher.Constraint("DistanceX", 29, 1, 29, 2, 0.269231),
    Sketcher.Constraint("DistanceX", 31, 1, 31, 2, 0.21875),
    Sketcher.Constraint("DistanceX", 4, 2, 18, 2, 4.438101),
    Sketcher.Constraint("DistanceX", 26, 2, 23, 2, 1.499399),
    Sketcher.Constraint("DistanceX", 21, 2, 27, 2, 0.813702),
    Sketcher.Constraint("DistanceX", 19, 2, 32, 2, 2.9375),
    Sketcher.Constraint("Distance", 15, 3.10434),
    Sketcher.Constraint("DistanceX", 14, 2, 14, 1, 0.278245),
    Sketcher.Constraint("DistanceX", 24, 2, 24, 1, 0.039062),
    Sketcher.Constraint("DistanceX", 33, 1, 33, 2, 0.332933),
    Sketcher.Constraint("DistanceY", 30, 2, 30, 1, 1.384615),
    Sketcher.Constraint("DistanceY", 17, 2, -1, 1, 1.794471),
    Sketcher.Constraint("DistanceY", 25, 2, -1, 1, 0.29988),
    Sketcher.Constraint("DistanceX", 22, 2, 18, 2, 0.018029),
    Sketcher.Constraint("DistanceX", 25, 2, 22, 2, 1.769231),
    Sketcher.Constraint("DistanceY", 30, 2, 22, 2, 0.569712),
])
sketch6.setExpression("Constraints[67]", "Params.sketch6_height")
sketch6.setExpression("Constraints[68]", "Params.sketch6_height2")
sketch6.setExpression("Constraints[69]", "Params.sketch6_height3")
sketch6.setExpression("Constraints[70]", "Params.sketch6_height4")
pocket1 = doc.addObject("PartDesign::Pocket", "Pocket")
body.addObject(pocket1)
pocket1.Profile = sketch6
pocket1.setExpression("Length", "Params.pocket1_length")
pocket1.Reversed = True

sketch7 = doc.addObject("Sketcher::SketchObject", "Sketch006")
body.addObject(sketch7)
sketch7.AttachmentSupport = (doc.XZ_Plane, [""])
sketch7.MapMode = "FlatFace"
sketch7.AttachmentOffset = App.Placement(App.Vector(0, 0, -1.5), App.Rotation())
add_polygon(sketch7, [(20, -40), (20, -18), (62, -18), (62, -40)])
sketch7.addConstraint([
    Sketcher.Constraint("Vertical", 0),
    Sketcher.Constraint("Horizontal", 1),
    Sketcher.Constraint("Vertical", 2),
    Sketcher.Constraint("Horizontal", 3),
    Sketcher.Constraint("DistanceX", 1, 1, 1, 2, 42.0),
    Sketcher.Constraint("DistanceX", -1, 1, 0, 2, 20.0),
    Sketcher.Constraint("DistanceY", 0, 2, -1, 1, 18.0),
    Sketcher.Constraint("DistanceY", 0, 1, 0, 2, 22.15),
])
sketch7.setExpression("Constraints[8]", "Params.sketch7_width")
sketch7.setExpression("Constraints[11]", "Params.sketch7_height")
pad6 = doc.addObject("PartDesign::Pad", "Pad005")
body.addObject(pad6)
pad6.Profile = sketch7
pad6.setExpression("Length", "Params.pad6_length")
pad6.Reversed = True

sketch8 = doc.addObject("Sketcher::SketchObject", "Sketch007")
body.addObject(sketch8)
sketch8.AttachmentSupport = (doc.XZ_Plane, [""])
sketch8.MapMode = "FlatFace"
sketch8.AttachmentOffset = App.Placement(App.Vector(0, 0, -1.5), App.Rotation())
sketch8.addGeometry([
    Part.Circle(App.Vector(3.5, -52.5, 0), App.Vector(0, 0, 1), 3),
    Part.Circle(App.Vector(3.5, -3.5, 0), App.Vector(0, 0, 1), 3),
    Part.Circle(App.Vector(61.5, -52.5, 0), App.Vector(0, 0, 1), 3),
    Part.Circle(App.Vector(61.5, -3.5, 0), App.Vector(0, 0, 1), 3),
], False)
sketch8.addConstraint([
    Sketcher.Constraint("Equal", 0, 1),
    Sketcher.Constraint("Equal", 1, 2),
    Sketcher.Constraint("Equal", 2, 3),
    Sketcher.Constraint("Horizontal", 0, 3, 2, 3),
    Sketcher.Constraint("Horizontal", 1, 3, 3, 3),
    Sketcher.Constraint("Vertical", 0, 3, 1, 3),
    Sketcher.Constraint("Vertical", 2, 3, 3, 3),
    Sketcher.Constraint("Diameter", 0, 6.0),
    Sketcher.Constraint("DistanceY", 0, 3, 1, 3, 49.0),
    Sketcher.Constraint("DistanceX", 0, 3, 2, 3, 58.0),
    Sketcher.Constraint("DistanceX", -1, 1, 0, 3, 3.5),
    Sketcher.Constraint("DistanceY", 0, 3, -1, 1, 52.5),
])
sketch8.setExpression("Constraints[7]", "Params.sketch8_diameter")
pocket2 = doc.addObject("PartDesign::Pocket", "Pocket001")
body.addObject(pocket2)
pocket2.Profile = sketch8
pocket2.setExpression("Length", "Params.pocket2_length")
pocket2.Reversed = True

doc.recompute()
